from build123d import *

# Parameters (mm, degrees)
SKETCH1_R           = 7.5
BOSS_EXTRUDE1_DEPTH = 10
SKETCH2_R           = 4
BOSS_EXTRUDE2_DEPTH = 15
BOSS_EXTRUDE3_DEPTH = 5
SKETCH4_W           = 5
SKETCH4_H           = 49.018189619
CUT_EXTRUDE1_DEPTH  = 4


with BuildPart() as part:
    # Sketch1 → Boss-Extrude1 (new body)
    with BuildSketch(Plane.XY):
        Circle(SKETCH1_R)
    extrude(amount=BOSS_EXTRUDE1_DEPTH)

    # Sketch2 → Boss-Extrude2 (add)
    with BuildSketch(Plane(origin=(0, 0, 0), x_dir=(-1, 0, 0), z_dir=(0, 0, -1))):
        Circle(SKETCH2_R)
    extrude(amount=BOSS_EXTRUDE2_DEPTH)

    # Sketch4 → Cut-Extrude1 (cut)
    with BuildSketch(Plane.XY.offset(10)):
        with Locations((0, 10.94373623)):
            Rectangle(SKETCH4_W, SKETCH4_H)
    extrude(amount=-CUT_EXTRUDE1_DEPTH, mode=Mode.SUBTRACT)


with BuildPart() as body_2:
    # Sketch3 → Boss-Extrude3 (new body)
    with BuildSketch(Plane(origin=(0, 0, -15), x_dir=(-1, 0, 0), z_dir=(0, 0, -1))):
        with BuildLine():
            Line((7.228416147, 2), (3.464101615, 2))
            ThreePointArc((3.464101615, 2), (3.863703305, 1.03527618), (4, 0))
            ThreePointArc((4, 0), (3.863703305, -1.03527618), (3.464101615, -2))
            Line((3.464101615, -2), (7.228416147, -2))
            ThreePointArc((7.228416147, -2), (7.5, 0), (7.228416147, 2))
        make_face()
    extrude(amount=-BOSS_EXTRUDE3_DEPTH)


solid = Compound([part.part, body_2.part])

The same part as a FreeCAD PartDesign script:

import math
import FreeCAD as App
import Part
import Sketcher

V = App.Vector
Q = App.Units.Quantity


def add_polygon(sketch, points):
    """Adds a closed chain of lines whose ends are joined by coincident constraints."""
    first, n = sketch.GeometryCount, len(points)
    for a, b in zip(points, points[1:] + points[:1]):
        sketch.addGeometry(Part.LineSegment(App.Vector(*a, 0), App.Vector(*b, 0)), False)
    for i in range(n):
        sketch.addConstraint(Sketcher.Constraint("Coincident", first + i, 2, first + (i + 1) % n, 1))

doc = App.newDocument("Part")
body = doc.addObject("PartDesign::Body", "Body")

# Sketch on XY plane
sketch1 = body.newObject("Sketcher::SketchObject", "Sketch")
sketch1.AttachmentSupport = (doc.getObject("XY_Plane"), [""])
sketch1.MapMode = "FlatFace"
sketch1.addGeometry(Part.Circle(V(0, 0, 0), V(0, 0, 1), 8), False)
sketch1.addConstraint([
    Sketcher.Constraint("Coincident", 0, 3, -1, 1),
    Sketcher.Constraint("Diameter", 0, Q("15 mm")),
])
pad1 = body.newObject("PartDesign::Pad", "Pad")
pad1.Profile = sketch1
pad1.Length = 10

# Sketch on XY plane
sketch2 = body.newObject("Sketcher::SketchObject", "Sketch001")
sketch2.AttachmentSupport = (doc.getObject("XY_Plane"), [""])
sketch2.MapMode = "FlatFace"
sketch2.addGeometry(Part.Circle(V(0, 0, 0), V(0, 0, 1), 4), False)
sketch2.addConstraint([
    Sketcher.Constraint("Coincident", 0, 3, -1, 1),
    Sketcher.Constraint("Diameter", 0, Q("8 mm")),
])
pad2 = body.newObject("PartDesign::Pad", "Pad001")
pad2.Profile = sketch2
pad2.Length = 15
pad2.Reversed = True

# Sketch on XY plane
sketch3 = body.newObject("Sketcher::SketchObject", "Sketch002")
sketch3.AttachmentSupport = (doc.getObject("XY_Plane"), [""])
sketch3.MapMode = "FlatFace"
sketch3.AttachmentOffset = App.Placement(V(0, 0, 10), App.Rotation())
add_polygon(sketch3, [(-2, 35), (-2, -14), (2, -14), (2, 35)])  # lines 0-3
sketch3.addConstraint([
    Sketcher.Constraint("Vertical", 0),
    Sketcher.Constraint("Horizontal", 1),
    Sketcher.Constraint("Vertical", 2),
    Sketcher.Constraint("Horizontal", 3),
    Sketcher.Constraint("DistanceX", 1, 1, 1, 2, Q("5 mm")),
    Sketcher.Constraint("DistanceX", 0, 2, -1, 1, Q("2.5 mm")),
    Sketcher.Constraint("DistanceY", 0, 2, 0, 1, Q("49.01819 mm")),
    Sketcher.Constraint("DistanceY", 0, 2, -1, 1, Q("13.565359 mm")),
])
pocket1 = body.newObject("PartDesign::Pocket", "Pocket")
pocket1.Profile = sketch3
pocket1.Length = 4
body2 = doc.addObject("PartDesign::Body", "Body001")

# Sketch on XY plane
sketch4 = body2.newObject("Sketcher::SketchObject", "Sketch003")
sketch4.AttachmentSupport = (doc.getObject("XY_Plane001"), [""])
sketch4.MapMode = "FlatFace"
sketch4.AttachmentOffset = App.Placement(V(0, 0, -15), App.Rotation())
sketch4.addGeometry([
    Part.LineSegment(V(-7.2, 2, 0), V(-3.5, 2, 0)),  # 0
    Part.ArcOfCircle(Part.Circle(V(0, 0, 0), V(0, 0, 1), 4), math.radians(150), math.radians(180)),  # 1
    Part.ArcOfCircle(Part.Circle(V(0, 0, 0), V(0, 0, 1), 4), math.radians(-180), math.radians(-150)),  # 2
    Part.LineSegment(V(-3.5, -2, 0), V(-7.2, -2, 0)),  # 3
    Part.ArcOfCircle(Part.Circle(V(0, 0, 0), V(0, 0, 1), 7.5), math.radians(165), math.radians(195)),  # 4
], False)
sketch4.addConstraint([
    Sketcher.Constraint("Coincident", 0, 2, 1, 1),
    Sketcher.Constraint("Tangent", 1, 2, 2, 1),
    Sketcher.Constraint("Coincident", 2, 2, 3, 1),
    Sketcher.Constraint("Coincident", 3, 2, 4, 2),
    Sketcher.Constraint("Coincident", 4, 1, 0, 1),
    Sketcher.Constraint("Horizontal", 0),
    Sketcher.Constraint("Horizontal", 3),
    Sketcher.Constraint("Coincident", 1, 3, -1, 1),
    Sketcher.Constraint("Coincident", 4, 3, -1, 1),
    Sketcher.Constraint("Equal", 1, 2),
    Sketcher.Constraint("PointOnObject", 1, 2, -1),
    Sketcher.Constraint("Vertical", 0, 2, 2, 2),
    Sketcher.Constraint("Radius", 1, Q("4 mm")),
    Sketcher.Constraint("Radius", 4, Q("7.5 mm")),
    Sketcher.Constraint("DistanceY", -1, 1, 0, 2, Q("2 mm")),
])
pad3 = body2.newObject("PartDesign::Pad", "Pad002")
pad3.Profile = sketch4
pad3.Length = 5

doc.recompute()
